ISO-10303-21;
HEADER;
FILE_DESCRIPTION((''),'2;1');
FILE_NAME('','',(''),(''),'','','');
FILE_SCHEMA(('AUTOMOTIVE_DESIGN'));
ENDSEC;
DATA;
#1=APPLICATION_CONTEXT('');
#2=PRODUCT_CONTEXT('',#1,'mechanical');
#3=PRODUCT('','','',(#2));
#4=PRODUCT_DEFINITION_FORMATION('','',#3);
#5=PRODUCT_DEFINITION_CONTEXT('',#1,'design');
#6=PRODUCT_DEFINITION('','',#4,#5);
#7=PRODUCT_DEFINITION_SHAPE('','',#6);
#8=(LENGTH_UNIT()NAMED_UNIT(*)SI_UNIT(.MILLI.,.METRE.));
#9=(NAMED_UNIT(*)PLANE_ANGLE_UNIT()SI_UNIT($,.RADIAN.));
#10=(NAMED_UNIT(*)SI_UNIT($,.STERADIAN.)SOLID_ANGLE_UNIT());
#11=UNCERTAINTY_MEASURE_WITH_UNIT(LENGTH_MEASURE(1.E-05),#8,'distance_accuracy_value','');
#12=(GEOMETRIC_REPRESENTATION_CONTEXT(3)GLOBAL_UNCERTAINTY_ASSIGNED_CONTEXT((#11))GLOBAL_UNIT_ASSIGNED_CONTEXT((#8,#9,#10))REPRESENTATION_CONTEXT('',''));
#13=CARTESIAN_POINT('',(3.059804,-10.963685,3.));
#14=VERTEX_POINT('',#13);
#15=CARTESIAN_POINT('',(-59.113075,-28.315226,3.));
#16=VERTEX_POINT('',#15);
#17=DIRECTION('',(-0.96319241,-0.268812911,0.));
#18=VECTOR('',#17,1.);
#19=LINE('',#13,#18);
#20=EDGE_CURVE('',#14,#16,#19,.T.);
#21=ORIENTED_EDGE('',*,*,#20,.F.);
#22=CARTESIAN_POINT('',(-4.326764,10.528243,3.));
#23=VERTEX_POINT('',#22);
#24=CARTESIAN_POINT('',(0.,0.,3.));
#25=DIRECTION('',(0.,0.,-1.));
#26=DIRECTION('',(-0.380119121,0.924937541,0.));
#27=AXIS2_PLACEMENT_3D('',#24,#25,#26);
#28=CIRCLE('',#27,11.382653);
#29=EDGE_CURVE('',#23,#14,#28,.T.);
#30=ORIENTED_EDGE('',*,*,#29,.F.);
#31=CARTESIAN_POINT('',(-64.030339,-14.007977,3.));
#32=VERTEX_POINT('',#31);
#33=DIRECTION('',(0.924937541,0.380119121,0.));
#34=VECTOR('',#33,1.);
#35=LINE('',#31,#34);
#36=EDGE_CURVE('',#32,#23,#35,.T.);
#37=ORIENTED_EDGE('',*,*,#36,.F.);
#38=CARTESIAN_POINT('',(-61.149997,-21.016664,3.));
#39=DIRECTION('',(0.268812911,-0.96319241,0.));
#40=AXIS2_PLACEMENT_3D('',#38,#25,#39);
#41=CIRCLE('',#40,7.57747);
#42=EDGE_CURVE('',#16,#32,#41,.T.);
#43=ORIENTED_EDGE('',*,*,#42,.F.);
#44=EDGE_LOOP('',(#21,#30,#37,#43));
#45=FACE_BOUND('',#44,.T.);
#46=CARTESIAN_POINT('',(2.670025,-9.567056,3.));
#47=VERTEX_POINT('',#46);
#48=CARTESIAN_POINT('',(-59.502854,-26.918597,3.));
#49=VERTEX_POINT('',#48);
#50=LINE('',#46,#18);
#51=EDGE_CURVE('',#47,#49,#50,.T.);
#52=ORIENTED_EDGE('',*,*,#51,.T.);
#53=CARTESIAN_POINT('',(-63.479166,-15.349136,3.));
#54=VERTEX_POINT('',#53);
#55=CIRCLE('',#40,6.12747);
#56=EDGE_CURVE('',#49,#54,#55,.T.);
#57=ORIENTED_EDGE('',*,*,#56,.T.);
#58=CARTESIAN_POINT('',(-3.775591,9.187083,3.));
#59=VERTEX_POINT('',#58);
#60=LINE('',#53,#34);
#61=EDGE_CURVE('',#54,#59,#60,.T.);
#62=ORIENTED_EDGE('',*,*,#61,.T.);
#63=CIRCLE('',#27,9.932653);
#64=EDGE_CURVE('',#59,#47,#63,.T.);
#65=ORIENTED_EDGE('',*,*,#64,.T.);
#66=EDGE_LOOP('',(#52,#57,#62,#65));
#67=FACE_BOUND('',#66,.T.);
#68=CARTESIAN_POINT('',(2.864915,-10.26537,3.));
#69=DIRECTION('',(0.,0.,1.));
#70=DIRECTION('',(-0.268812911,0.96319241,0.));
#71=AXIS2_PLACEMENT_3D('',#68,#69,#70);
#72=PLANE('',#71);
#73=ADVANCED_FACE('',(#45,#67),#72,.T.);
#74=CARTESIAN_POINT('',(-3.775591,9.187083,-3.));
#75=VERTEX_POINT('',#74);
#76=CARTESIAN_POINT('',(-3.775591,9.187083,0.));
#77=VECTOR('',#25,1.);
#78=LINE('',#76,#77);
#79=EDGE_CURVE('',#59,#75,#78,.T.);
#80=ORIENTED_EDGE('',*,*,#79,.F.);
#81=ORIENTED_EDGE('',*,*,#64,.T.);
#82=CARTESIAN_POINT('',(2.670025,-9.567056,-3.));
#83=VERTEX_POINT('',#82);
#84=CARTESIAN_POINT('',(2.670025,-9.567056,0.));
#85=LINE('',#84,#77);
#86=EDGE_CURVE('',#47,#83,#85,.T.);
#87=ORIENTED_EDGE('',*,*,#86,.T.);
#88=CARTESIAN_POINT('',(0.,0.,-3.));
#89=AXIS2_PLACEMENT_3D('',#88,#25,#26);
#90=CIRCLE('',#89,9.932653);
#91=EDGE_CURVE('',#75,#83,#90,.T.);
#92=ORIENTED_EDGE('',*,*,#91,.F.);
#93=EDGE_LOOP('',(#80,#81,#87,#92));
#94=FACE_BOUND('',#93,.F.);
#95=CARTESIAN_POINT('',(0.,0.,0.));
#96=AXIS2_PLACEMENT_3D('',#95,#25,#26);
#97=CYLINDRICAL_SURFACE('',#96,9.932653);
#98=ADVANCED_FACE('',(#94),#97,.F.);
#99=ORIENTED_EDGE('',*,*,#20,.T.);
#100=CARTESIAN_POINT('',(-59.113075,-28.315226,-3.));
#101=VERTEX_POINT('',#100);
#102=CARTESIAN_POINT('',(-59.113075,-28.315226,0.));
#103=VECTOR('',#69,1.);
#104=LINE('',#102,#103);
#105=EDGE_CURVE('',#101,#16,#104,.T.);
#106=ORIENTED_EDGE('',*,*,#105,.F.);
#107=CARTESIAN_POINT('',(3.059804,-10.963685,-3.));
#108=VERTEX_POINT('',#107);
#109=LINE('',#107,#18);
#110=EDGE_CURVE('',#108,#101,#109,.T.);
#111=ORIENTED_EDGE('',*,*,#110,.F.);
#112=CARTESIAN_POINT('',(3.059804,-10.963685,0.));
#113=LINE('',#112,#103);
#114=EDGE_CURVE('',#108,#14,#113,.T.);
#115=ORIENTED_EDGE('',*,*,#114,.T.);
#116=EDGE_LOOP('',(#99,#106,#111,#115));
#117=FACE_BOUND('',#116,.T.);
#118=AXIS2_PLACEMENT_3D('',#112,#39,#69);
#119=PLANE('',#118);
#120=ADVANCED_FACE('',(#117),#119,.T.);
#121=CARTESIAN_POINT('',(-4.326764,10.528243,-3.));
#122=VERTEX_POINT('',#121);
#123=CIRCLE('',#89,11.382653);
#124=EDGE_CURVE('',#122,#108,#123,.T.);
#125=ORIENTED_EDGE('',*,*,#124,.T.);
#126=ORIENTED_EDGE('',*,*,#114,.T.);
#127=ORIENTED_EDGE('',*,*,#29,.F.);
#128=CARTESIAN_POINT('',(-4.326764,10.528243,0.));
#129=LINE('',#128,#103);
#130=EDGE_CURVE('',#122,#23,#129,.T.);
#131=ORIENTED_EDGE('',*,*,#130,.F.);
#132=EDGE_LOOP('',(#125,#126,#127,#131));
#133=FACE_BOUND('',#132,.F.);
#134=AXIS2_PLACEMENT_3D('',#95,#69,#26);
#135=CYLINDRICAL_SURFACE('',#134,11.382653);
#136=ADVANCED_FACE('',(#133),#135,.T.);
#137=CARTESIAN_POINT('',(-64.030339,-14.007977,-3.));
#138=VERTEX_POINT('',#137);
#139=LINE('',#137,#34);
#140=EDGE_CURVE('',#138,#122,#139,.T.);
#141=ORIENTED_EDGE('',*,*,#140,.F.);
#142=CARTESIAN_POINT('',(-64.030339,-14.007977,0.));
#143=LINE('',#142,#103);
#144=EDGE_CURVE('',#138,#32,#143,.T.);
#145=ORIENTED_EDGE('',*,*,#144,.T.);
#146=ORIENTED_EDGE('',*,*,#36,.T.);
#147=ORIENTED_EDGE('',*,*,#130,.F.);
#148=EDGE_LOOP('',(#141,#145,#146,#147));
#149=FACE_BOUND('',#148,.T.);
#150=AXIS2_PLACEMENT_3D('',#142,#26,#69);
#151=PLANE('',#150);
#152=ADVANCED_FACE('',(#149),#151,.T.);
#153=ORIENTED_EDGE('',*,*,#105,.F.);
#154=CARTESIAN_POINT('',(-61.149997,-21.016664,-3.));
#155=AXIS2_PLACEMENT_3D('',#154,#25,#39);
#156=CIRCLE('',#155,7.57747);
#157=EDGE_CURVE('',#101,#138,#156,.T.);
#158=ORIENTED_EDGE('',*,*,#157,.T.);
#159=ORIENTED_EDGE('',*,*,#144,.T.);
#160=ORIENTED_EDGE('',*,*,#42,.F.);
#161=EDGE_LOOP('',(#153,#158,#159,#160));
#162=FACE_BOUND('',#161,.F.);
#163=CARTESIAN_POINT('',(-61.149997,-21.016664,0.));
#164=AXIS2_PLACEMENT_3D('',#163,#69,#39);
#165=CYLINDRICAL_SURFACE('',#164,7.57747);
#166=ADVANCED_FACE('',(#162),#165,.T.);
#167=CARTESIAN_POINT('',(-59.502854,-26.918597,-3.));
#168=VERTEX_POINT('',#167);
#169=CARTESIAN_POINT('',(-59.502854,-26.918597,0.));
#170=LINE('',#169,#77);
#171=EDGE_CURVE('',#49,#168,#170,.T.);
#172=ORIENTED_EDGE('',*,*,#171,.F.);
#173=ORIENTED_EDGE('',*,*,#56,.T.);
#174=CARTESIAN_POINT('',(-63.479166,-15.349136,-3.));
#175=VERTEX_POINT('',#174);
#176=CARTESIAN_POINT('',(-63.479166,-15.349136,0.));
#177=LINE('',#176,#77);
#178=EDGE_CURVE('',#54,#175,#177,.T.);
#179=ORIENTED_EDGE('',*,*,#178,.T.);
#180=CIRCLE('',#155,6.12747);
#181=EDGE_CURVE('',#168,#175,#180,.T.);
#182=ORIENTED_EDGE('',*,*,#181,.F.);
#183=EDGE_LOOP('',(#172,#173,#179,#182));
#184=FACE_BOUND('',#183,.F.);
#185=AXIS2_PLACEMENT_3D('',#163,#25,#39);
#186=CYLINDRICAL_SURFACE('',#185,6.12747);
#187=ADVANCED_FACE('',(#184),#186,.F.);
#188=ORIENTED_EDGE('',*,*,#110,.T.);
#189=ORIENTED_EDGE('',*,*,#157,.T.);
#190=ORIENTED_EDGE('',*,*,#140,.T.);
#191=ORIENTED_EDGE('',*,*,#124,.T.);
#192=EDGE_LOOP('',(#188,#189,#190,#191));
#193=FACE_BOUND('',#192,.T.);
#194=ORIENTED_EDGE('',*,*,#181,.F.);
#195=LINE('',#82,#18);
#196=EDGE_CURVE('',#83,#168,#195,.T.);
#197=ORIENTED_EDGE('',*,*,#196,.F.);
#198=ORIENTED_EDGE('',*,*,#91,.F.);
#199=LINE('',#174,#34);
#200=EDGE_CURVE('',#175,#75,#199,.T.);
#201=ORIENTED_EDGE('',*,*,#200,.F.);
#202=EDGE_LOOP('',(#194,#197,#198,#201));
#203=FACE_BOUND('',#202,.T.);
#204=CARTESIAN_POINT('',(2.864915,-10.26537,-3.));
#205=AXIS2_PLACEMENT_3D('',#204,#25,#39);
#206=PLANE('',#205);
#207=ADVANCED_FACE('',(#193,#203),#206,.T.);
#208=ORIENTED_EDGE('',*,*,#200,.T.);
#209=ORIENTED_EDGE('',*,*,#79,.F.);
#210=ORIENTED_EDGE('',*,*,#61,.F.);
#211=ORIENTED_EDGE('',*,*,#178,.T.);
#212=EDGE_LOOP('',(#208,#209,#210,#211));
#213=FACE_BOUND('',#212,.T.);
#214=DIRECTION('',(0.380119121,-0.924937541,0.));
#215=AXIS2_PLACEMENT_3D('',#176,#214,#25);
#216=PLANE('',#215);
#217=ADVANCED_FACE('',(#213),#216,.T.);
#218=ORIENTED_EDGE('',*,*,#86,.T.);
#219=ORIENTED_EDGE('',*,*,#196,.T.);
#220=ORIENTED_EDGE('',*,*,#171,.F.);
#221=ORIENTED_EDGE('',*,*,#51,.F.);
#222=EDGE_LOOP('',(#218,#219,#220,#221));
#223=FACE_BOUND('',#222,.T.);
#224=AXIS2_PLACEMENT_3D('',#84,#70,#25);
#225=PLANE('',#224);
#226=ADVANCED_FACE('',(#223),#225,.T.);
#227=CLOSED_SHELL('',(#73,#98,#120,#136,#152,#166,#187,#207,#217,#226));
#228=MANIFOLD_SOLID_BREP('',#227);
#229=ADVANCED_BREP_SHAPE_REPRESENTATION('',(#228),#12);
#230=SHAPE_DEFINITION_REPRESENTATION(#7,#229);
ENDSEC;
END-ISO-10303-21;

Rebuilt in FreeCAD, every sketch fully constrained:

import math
import FreeCAD as App
import Part
import Sketcher
from FreeCAD import Vector
Q = App.Units.Quantity

doc = App.newDocument("Part")
body = doc.addObject("PartDesign::Body", "Body")

# Sketch on an angled plane
sketch1 = body.newObject("Sketcher::SketchObject", "Sketch")
sketch1.Placement = App.Placement(Vector(-63.479166, -15.349136, 0), App.Rotation(Vector(0, 0, -1), Vector(-0.380119121, 0.924937541, 0), Vector(0.924937541, 0.380119121, 0), "ZXY"))
sketch1.addGeometry([
    Part.LineSegment(Vector(-3, 1.5, 0), Vector(-3, 0, 0)),
    Part.LineSegment(Vector(-3, 0, 0), Vector(3, 0, 0)),
    Part.LineSegment(Vector(3, 0, 0), Vector(3, 1.5, 0)),
    Part.LineSegment(Vector(3, 1.5, 0), Vector(-3, 1.5, 0)),
], False)
sketch1.addConstraint([
    Sketcher.Constraint("Coincident", 0, 2, 1, 1),
    Sketcher.Constraint("Coincident", 1, 2, 2, 1),
    Sketcher.Constraint("Coincident", 2, 2, 3, 1),
    Sketcher.Constraint("Coincident", 3, 2, 0, 1),
    Sketcher.Constraint("Vertical", 0),
    Sketcher.Constraint("Horizontal", 1),
    Sketcher.Constraint("Vertical", 2),
    Sketcher.Constraint("Horizontal", 3),
    Sketcher.Constraint("Symmetric", 0, 2, 1, 2, -1, 1),
    Sketcher.Constraint("DistanceX", 1, 1, 1, 2, Q("6 mm")),
    Sketcher.Constraint("DistanceY", 0, 2, 0, 1, Q("1.45 mm")),
])

# Sketch on XY plane
sketch2 = body.newObject("Sketcher::SketchObject", "Sketch001")
sketch2.AttachmentSupport = (doc.getObject("XY_Plane"), [""])
sketch2.MapMode = "FlatFace"
sketch2.addGeometry([
    Part.LineSegment(Vector(3, -10, 0), Vector(-60, -27, 0)),
    Part.ArcOfCircle(Part.Circle(Vector(-61, -21, 0), Vector(0, 0, 1), 6), math.radians(112), math.radians(286)),
    Part.LineSegment(Vector(-63, -15, 0), Vector(-4, 9, 0)),
    Part.ArcOfCircle(Part.Circle(Vector(0, 0, 0), Vector(0, 0, 1), 10), math.radians(-74), math.radians(112)),
], False)
sketch2.addConstraint([
    Sketcher.Constraint("Tangent", 0, 2, 1, 2),
    Sketcher.Constraint("Tangent", 1, 1, 2, 1),
    Sketcher.Constraint("Tangent", 2, 2, 3, 2),
    Sketcher.Constraint("Tangent", 3, 1, 0, 1),
    Sketcher.Constraint("Coincident", 3, 3, -1, 1),
    Sketcher.Constraint("Radius", 1, Q("6.12747 mm")),
    Sketcher.Constraint("Radius", 3, Q("9.932653 mm")),
    Sketcher.Constraint("DistanceX", 2, 2, -1, 1, Q("3.775591 mm")),
    Sketcher.Constraint("DistanceY", 1, 1, 2, 2, Q("24.536219 mm")),
])
doc.recompute()

additivepipe = body.newObject("PartDesign::AdditivePipe", "AdditivePipe")
additivepipe.Profile = sketch1
additivepipe.Spine = (sketch2, ["Edge1", "Edge2", "Edge3", "Edge4"])

doc.recompute()
